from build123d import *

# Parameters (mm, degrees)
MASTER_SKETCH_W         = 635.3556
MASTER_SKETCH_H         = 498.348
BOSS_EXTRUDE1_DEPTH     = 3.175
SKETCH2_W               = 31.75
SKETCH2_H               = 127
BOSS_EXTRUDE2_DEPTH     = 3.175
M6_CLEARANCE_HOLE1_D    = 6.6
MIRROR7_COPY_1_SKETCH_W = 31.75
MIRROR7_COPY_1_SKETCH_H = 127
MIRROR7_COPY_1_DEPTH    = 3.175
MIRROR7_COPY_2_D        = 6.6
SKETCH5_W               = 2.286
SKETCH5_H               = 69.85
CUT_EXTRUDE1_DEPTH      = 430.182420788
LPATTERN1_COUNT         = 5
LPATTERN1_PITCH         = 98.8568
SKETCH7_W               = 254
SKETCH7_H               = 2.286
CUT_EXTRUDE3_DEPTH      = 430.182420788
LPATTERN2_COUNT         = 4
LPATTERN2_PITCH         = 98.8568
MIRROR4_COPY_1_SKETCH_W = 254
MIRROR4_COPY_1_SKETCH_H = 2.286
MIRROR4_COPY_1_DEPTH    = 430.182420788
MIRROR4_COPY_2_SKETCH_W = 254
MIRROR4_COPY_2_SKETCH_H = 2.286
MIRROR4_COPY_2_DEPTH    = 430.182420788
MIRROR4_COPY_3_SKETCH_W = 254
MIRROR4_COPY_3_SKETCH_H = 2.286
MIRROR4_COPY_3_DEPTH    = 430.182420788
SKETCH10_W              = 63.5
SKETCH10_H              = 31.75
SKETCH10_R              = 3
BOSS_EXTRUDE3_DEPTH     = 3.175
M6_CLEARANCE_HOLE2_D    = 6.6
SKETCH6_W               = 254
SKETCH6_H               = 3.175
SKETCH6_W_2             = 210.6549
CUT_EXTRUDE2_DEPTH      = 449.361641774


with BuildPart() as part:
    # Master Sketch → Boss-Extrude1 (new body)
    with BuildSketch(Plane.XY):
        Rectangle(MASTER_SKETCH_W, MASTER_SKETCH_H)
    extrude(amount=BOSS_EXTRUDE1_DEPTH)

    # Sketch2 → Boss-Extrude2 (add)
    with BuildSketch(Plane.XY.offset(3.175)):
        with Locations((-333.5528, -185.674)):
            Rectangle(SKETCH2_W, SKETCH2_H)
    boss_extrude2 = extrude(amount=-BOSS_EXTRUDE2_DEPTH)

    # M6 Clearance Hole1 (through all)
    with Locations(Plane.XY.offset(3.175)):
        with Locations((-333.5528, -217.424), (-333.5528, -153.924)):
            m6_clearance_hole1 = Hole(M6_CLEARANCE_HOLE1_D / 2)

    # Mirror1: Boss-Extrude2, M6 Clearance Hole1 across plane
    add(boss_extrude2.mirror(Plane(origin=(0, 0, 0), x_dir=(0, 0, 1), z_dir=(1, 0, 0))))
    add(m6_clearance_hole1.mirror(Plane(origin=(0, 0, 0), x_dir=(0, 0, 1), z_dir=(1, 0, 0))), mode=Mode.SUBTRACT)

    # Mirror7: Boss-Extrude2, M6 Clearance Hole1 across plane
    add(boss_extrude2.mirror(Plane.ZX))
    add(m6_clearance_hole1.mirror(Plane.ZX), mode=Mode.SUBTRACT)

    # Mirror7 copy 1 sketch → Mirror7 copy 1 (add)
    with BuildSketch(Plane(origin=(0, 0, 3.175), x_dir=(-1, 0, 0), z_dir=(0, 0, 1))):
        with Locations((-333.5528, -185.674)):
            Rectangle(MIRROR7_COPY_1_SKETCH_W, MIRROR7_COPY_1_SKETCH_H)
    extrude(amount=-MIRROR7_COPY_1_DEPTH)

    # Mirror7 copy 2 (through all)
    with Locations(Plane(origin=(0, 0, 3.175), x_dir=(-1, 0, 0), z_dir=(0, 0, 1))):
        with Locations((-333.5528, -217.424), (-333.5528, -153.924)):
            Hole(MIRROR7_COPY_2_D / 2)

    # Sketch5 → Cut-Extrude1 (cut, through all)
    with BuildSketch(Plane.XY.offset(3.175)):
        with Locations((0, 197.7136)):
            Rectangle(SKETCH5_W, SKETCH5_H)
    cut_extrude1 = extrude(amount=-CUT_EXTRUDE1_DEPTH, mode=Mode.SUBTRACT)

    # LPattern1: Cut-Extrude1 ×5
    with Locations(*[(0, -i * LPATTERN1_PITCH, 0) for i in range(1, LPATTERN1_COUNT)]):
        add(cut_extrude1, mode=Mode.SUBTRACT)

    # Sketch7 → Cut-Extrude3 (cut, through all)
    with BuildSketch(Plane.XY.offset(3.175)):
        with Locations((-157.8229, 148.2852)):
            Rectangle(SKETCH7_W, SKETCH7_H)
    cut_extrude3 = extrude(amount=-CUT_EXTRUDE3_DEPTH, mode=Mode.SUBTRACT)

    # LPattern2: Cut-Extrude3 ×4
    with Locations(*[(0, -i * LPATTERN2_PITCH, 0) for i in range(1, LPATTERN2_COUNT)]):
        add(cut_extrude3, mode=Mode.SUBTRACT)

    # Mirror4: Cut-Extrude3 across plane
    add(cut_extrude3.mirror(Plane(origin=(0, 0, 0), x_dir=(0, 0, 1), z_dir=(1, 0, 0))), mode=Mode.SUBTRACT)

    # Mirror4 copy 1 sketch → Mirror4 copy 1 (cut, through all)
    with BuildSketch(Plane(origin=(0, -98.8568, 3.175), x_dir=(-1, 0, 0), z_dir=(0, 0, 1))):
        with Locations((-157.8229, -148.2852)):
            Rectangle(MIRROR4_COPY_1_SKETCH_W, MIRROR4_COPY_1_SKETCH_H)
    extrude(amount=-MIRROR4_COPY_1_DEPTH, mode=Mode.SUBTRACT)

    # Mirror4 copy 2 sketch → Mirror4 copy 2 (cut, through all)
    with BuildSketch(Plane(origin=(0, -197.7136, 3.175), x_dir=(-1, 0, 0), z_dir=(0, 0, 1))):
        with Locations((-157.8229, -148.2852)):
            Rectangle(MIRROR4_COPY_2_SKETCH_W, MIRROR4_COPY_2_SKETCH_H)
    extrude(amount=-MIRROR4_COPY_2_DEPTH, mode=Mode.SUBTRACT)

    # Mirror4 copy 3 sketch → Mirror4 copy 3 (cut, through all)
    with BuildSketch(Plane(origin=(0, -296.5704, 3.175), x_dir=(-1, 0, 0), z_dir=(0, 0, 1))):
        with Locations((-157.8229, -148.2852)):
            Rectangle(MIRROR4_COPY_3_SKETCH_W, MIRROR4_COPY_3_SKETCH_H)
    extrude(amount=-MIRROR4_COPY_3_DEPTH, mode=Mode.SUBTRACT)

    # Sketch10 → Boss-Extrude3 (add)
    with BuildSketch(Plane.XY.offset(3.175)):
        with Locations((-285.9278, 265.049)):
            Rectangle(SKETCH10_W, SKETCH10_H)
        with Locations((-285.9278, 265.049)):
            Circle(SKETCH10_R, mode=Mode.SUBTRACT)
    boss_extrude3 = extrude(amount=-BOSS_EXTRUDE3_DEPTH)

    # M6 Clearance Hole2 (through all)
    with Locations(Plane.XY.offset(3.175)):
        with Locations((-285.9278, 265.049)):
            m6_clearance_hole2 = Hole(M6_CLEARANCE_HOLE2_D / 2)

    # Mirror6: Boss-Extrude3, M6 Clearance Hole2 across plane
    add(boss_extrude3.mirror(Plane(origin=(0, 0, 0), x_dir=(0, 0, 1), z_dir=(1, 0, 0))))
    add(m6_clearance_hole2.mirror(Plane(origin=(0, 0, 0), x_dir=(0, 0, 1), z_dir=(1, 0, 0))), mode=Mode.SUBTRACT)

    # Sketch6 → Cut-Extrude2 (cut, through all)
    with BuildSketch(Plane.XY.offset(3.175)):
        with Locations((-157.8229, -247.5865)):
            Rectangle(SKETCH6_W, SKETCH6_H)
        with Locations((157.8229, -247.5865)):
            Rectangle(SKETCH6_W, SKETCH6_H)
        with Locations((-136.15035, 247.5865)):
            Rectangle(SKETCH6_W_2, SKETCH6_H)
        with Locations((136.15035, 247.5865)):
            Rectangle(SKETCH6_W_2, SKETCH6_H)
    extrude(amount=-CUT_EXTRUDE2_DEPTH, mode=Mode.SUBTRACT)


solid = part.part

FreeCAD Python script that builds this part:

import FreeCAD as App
import Part
import Sketcher
from FreeCAD import Vector
Q = App.Units.Quantity


def add_polygon(sketch, points):
    """Adds a closed chain of lines whose ends are joined by coincident constraints."""
    first, n = sketch.GeometryCount, len(points)
    for a, b in zip(points, points[1:] + points[:1]):
        sketch.addGeometry(Part.LineSegment(App.Vector(*a, 0), App.Vector(*b, 0)), False)
    for i in range(n):
        sketch.addConstraint(Sketcher.Constraint("Coincident", first + i, 2, first + (i + 1) % n, 1))

doc = App.newDocument("Part")
params = doc.addObject("Spreadsheet::Sheet", "Params")
for row, (alias, value) in enumerate([
    ("sketch1_height", "19.62 in"),
    ("sketch1_width", "25.014 in"),
    ("pad1_length", "0.125 in"),
    ("sketch2_height", "5 in"),
    ("sketch2_width", "1.25 in"),
    ("pad2_length", "0.125 in"),
    ("hole_diameter", "6.6 mm"),
    ("sketch4_height", "5 in"),
    ("sketch4_width", "1.25 in"),
    ("pad3_length", "0.125 in"),
    ("hole2_diameter", "6.6 mm"),
    ("sketch6_width", "0.09 in"),
    ("sketch6_height", "2.75 in"),
    ("linearpattern_pitch", "3.892 in"),
    ("sketch7_width", "10 in"),
    ("sketch7_height", "0.09 in"),
    ("linearpattern2_pitch", "3.892 in"),
    ("sketch8_width", "10 in"),
    ("sketch8_height", "0.09 in"),
    ("sketch9_width", "10 in"),
    ("sketch9_height", "0.09 in"),
    ("sketch10_width", "10 in"),
    ("sketch10_height", "0.09 in"),
    ("sketch11_width", "2.5 in"),
    ("sketch11_height", "1.25 in"),
    ("pad4_length", "0.125 in"),
    ("hole3_diameter", "6.6 mm"),
    ("sketch13_width", "10 in"),
    ("sketch13_height", "0.125 in"),
], start=1):
    params.set(f"A{row}", alias)
    params.set(f"B{row}", "=" + value)
    params.setAlias(f"B{row}", alias)

body = doc.addObject("PartDesign::Body", "Body")

sketch1 = body.newObject("Sketcher::SketchObject", "Sketch")
sketch1.AttachmentSupport = (doc.getObject("XY_Plane"), [""])
sketch1.MapMode = "FlatFace"
add_polygon(sketch1, [(-318, 249), (-318, -249), (318, -249), (318, 249)])
sketch1.addConstraint([
    Sketcher.Constraint("Vertical", 0),
    Sketcher.Constraint("Horizontal", 1),
    Sketcher.Constraint("Vertical", 2),
    Sketcher.Constraint("Horizontal", 3),
    Sketcher.Constraint("Symmetric", 0, 2, 2, 2, -1, 1),
    Sketcher.Constraint("DistanceY", 0, 2, 0, 1, Q("19.62 in")),
    Sketcher.Constraint("DistanceX", 1, 1, 1, 2, Q("25.014 in")),
])
sketch1.setExpression("Constraints[9]", "Params.sketch1_height")
sketch1.setExpression("Constraints[10]", "Params.sketch1_width")
pad1 = body.newObject("PartDesign::Pad", "Pad")
pad1.Profile = sketch1
pad1.setExpression("Length", "Params.pad1_length")

sketch2 = body.newObject("Sketcher::SketchObject", "Sketch001")
sketch2.AttachmentSupport = (doc.getObject("XY_Plane"), [""])
sketch2.MapMode = "FlatFace"
sketch2.AttachmentOffset = App.Placement(Vector(0, 0, 0.125 * 25.4), App.Rotation())
add_polygon(sketch2, [(-349, -122), (-349, -249), (-318, -249), (-318, -122)])
sketch2.addConstraint([
    Sketcher.Constraint("Vertical", 0),
    Sketcher.Constraint("Horizontal", 1),
    Sketcher.Constraint("Vertical", 2),
    Sketcher.Constraint("Horizontal", 3),
    Sketcher.Constraint("DistanceY", 0, 2, 0, 1, Q("5 in")),
    Sketcher.Constraint("DistanceX", 1, 1, 1, 2, Q("1.25 in")),
    Sketcher.Constraint("DistanceY", 0, 2, -1, 1, Q("9.81 in")),
    Sketcher.Constraint("DistanceX", 0, 2, -1, 1, Q("13.757 in")),
])
sketch2.setExpression("Constraints[8]", "Params.sketch2_height")
sketch2.setExpression("Constraints[9]", "Params.sketch2_width")
pad2 = body.newObject("PartDesign::Pad", "Pad001")
pad2.Profile = sketch2
pad2.setExpression("Length", "Params.pad2_length")
pad2.Reversed = True

sketch3 = body.newObject("Sketcher::SketchObject", "Sketch002")
sketch3.AttachmentSupport = (doc.getObject("XY_Plane"), [""])
sketch3.MapMode = "FlatFace"
sketch3.AttachmentOffset = App.Placement(Vector(0, 0, 0.125 * 25.4), App.Rotation())
sketch3.addGeometry([
    Part.Circle(Vector(-333.6, -217.4, 0), Vector(0, 0, 1), 3.3),
    Part.Circle(Vector(-333.6, -153.9, 0), Vector(0, 0, 1), 3.3),
], False)
sketch3.addConstraint([
    Sketcher.Constraint("Equal", 0, 1),
    Sketcher.Constraint("Vertical", 0, 3, 1, 3),
    Sketcher.Constraint("DistanceY", 0, 3, 1, 3, Q("2.5 in")),
    Sketcher.Constraint("Diameter", 0, Q("6.6 mm")),
    Sketcher.Constraint("DistanceY", 0, 3, -1, 1, Q("8.56 in")),
    Sketcher.Constraint("DistanceX", 0, 3, -1, 1, Q("13.132 in")),
])
doc.recompute()
hole = body.newObject("PartDesign::Hole", "Hole")
hole.Profile = sketch3
hole.ThreadType = "None"
hole.setExpression("Diameter", "Params.hole_diameter")
hole.DepthType = "ThroughAll"
doc.recompute()

mirrored = body.newObject("PartDesign::Mirrored", "Mirrored")
mirrored.Originals = [pad2, hole]
mirrored.MirrorPlane = (doc.getObject("YZ_Plane"), [""])
body.Tip = mirrored
doc.recompute()

mirrored2 = body.newObject("PartDesign::Mirrored", "Mirrored001")
mirrored2.Originals = [pad2, hole]
mirrored2.MirrorPlane = (doc.getObject("XZ_Plane"), [""])
body.Tip = mirrored2

sketch4 = body.newObject("Sketcher::SketchObject", "Sketch003")
sketch4.AttachmentSupport = (doc.getObject("XY_Plane"), [""])
sketch4.MapMode = "FlatFace"
sketch4.AttachmentOffset = App.Placement(Vector(0, 0, 0.125 * 25.4), App.Rotation())
add_polygon(sketch4, [(349, 122), (349, 249), (318, 249), (318, 122)])
sketch4.addConstraint([
    Sketcher.Constraint("Vertical", 0),
    Sketcher.Constraint("Horizontal", 1),
    Sketcher.Constraint("Vertical", 2),
    Sketcher.Constraint("Horizontal", 3),
    Sketcher.Constraint("DistanceY", 0, 1, 0, 2, Q("5 in")),
    Sketcher.Constraint("DistanceX", 1, 2, 1, 1, Q("1.25 in")),
    Sketcher.Constraint("DistanceY", -1, 1, 0, 2, Q("9.81 in")),
    Sketcher.Constraint("DistanceX", -1, 1, 0, 2, Q("13.757 in")),
])
sketch4.setExpression("Constraints[8]", "Params.sketch4_height")
sketch4.setExpression("Constraints[9]", "Params.sketch4_width")
pad3 = body.newObject("PartDesign::Pad", "Pad002")
pad3.Profile = sketch4
pad3.setExpression("Length", "Params.pad3_length")
pad3.Reversed = True

sketch5 = body.newObject("Sketcher::SketchObject", "Sketch004")
sketch5.AttachmentSupport = (doc.getObject("XY_Plane"), [""])
sketch5.MapMode = "FlatFace"
sketch5.AttachmentOffset = App.Placement(Vector(0, 0, 0.125 * 25.4), App.Rotation())
sketch5.addGeometry([
    Part.Circle(Vector(333.6, 217.4, 0), Vector(0, 0, 1), 3.3),
    Part.Circle(Vector(333.6, 153.9, 0), Vector(0, 0, 1), 3.3),
], False)
sketch5.addConstraint([
    Sketcher.Constraint("Equal", 0, 1),
    Sketcher.Constraint("Vertical", 0, 3, 1, 3),
    Sketcher.Constraint("DistanceY", 1, 3, 0, 3, Q("2.5 in")),
    Sketcher.Constraint("Diameter", 0, Q("6.6 mm")),
    Sketcher.Constraint("DistanceY", -1, 1, 0, 3, Q("8.56 in")),
    Sketcher.Constraint("DistanceX", -1, 1, 0, 3, Q("13.132 in")),
])
doc.recompute()
hole2 = body.newObject("PartDesign::Hole", "Hole001")
hole2.Profile = sketch5
hole2.ThreadType = "None"
hole2.setExpression("Diameter", "Params.hole2_diameter")
hole2.DepthType = "ThroughAll"

sketch6 = body.newObject("Sketcher::SketchObject", "Sketch005")
sketch6.AttachmentSupport = (doc.getObject("XY_Plane"), [""])
sketch6.MapMode = "FlatFace"
sketch6.AttachmentOffset = App.Placement(Vector(0, 0, 0.125 * 25.4), App.Rotation())
add_polygon(sketch6, [(-1.1, 232.6), (-1.1, 162.8), (1.1, 162.8), (1.1, 232.6)])
sketch6.addConstraint([
    Sketcher.Constraint("Vertical", 0),
    Sketcher.Constraint("Horizontal", 1),
    Sketcher.Constraint("Vertical", 2),
    Sketcher.Constraint("Horizontal", 3),
    Sketcher.Constraint("DistanceX", 1, 1, 1, 2, Q("0.09 in")),
    Sketcher.Constraint("DistanceY", 0, 2, 0, 1, Q("2.75 in")),
    Sketcher.Constraint("DistanceX", 0, 2, -1, 1, Q("0.045 in")),
    Sketcher.Constraint("DistanceY", -1, 1, 0, 2, Q("6.409 in")),
])
sketch6.setExpression("Constraints[8]", "Params.sketch6_width")
sketch6.setExpression("Constraints[9]", "Params.sketch6_height")
pocket1 = body.newObject("PartDesign::Pocket", "Pocket")
pocket1.Profile = sketch6
pocket1.Type = "ThroughAll"
doc.recompute()

linearpattern = body.newObject("PartDesign::LinearPattern", "LinearPattern")
linearpattern.Originals = [pocket1]
linearpattern.Direction = (doc.getObject("Y_Axis"), [""])
linearpattern.Mode = "offset"
linearpattern.setExpression("Offset", "Params.linearpattern_pitch")
linearpattern.Occurrences = 5
linearpattern.Reversed = True
body.Tip = linearpattern

sketch7 = body.newObject("Sketcher::SketchObject", "Sketch006")
sketch7.AttachmentSupport = (doc.getObject("XY_Plane"), [""])
sketch7.MapMode = "FlatFace"
sketch7.AttachmentOffset = App.Placement(Vector(0, 0, 0.125 * 25.4), App.Rotation())
add_polygon(sketch7, [(-284.8, 149.4), (-284.8, 147.1), (-30.8, 147.1), (-30.8, 149.4)])
sketch7.addConstraint([
    Sketcher.Constraint("Vertical", 0),
    Sketcher.Constraint("Horizontal", 1),
    Sketcher.Constraint("Vertical", 2),
    Sketcher.Constraint("Horizontal", 3),
    Sketcher.Constraint("DistanceX", 1, 1, 1, 2, Q("10 in")),
    Sketcher.Constraint("DistanceY", 0, 2, 0, 1, Q("0.09 in")),
    Sketcher.Constraint("DistanceY", -1, 1, 0, 2, Q("5.793 in")),
    Sketcher.Constraint("DistanceX", 0, 2, -1, 1, Q("11.2135 in")),
])
sketch7.setExpression("Constraints[8]", "Params.sketch7_width")
sketch7.setExpression("Constraints[9]", "Params.sketch7_height")
pocket2 = body.newObject("PartDesign::Pocket", "Pocket001")
pocket2.Profile = sketch7
pocket2.Type = "ThroughAll"
doc.recompute()

linearpattern2 = body.newObject("PartDesign::LinearPattern", "LinearPattern001")
linearpattern2.Originals = [pocket2]
linearpattern2.Direction = (doc.getObject("Y_Axis"), [""])
linearpattern2.Mode = "offset"
linearpattern2.setExpression("Offset", "Params.linearpattern2_pitch")
linearpattern2.Occurrences = 4
linearpattern2.Reversed = True
body.Tip = linearpattern2
doc.recompute()

mirrored3 = body.newObject("PartDesign::Mirrored", "Mirrored002")
mirrored3.Originals = [pocket2]
mirrored3.MirrorPlane = (doc.getObject("YZ_Plane"), [""])
body.Tip = mirrored3

sketch8 = body.newObject("Sketcher::SketchObject", "Sketch007")
sketch8.AttachmentSupport = (doc.getObject("XY_Plane"), [""])
sketch8.MapMode = "FlatFace"
sketch8.AttachmentOffset = App.Placement(Vector(0, 0, 0.125 * 25.4), App.Rotation())
add_polygon(sketch8, [(284.8, 48.3), (284.8, 50.6), (30.8, 50.6), (30.8, 48.3)])
sketch8.addConstraint([
    Sketcher.Constraint("Vertical", 0),
    Sketcher.Constraint("Horizontal", 1),
    Sketcher.Constraint("Vertical", 2),
    Sketcher.Constraint("Horizontal", 3),
    Sketcher.Constraint("DistanceX", 1, 2, 1, 1, Q("10 in")),
    Sketcher.Constraint("DistanceY", 0, 1, 0, 2, Q("0.09 in")),
    Sketcher.Constraint("DistanceY", -1, 1, 0, 2, Q("1.991 in")),
    Sketcher.Constraint("DistanceX", -1, 1, 0, 2, Q("11.2135 in")),
])
sketch8.setExpression("Constraints[8]", "Params.sketch8_width")
sketch8.setExpression("Constraints[9]", "Params.sketch8_height")
pocket3 = body.newObject("PartDesign::Pocket", "Pocket002")
pocket3.Profile = sketch8
pocket3.Type = "ThroughAll"

sketch9 = body.newObject("Sketcher::SketchObject", "Sketch008")
sketch9.AttachmentSupport = (doc.getObject("XY_Plane"), [""])
sketch9.MapMode = "FlatFace"
sketch9.AttachmentOffset = App.Placement(Vector(0, 0, 0.125 * 25.4), App.Rotation())
add_polygon(sketch9, [(284.8, -50.6), (284.8, -48.3), (30.8, -48.3), (30.8, -50.6)])
sketch9.addConstraint([
    Sketcher.Constraint("Vertical", 0),
    Sketcher.Constraint("Horizontal", 1),
    Sketcher.Constraint("Vertical", 2),
    Sketcher.Constraint("Horizontal", 3),
    Sketcher.Constraint("DistanceX", 1, 2, 1, 1, Q("10 in")),
    Sketcher.Constraint("DistanceY", 0, 1, 0, 2, Q("0.09 in")),
    Sketcher.Constraint("DistanceY", 0, 2, -1, 1, Q("1.901 in")),
    Sketcher.Constraint("DistanceX", -1, 1, 0, 2, Q("11.2135 in")),
])
sketch9.setExpression("Constraints[8]", "Params.sketch9_width")
sketch9.setExpression("Constraints[9]", "Params.sketch9_height")
pocket4 = body.newObject("PartDesign::Pocket", "Pocket003")
pocket4.Profile = sketch9
pocket4.Type = "ThroughAll"

sketch10 = body.newObject("Sketcher::SketchObject", "Sketch009")
sketch10.AttachmentSupport = (doc.getObject("XY_Plane"), [""])
sketch10.MapMode = "FlatFace"
sketch10.AttachmentOffset = App.Placement(Vector(0, 0, 0.125 * 25.4), App.Rotation())
add_polygon(sketch10, [(284.8, -149.4), (284.8, -147.1), (30.8, -147.1), (30.8, -149.4)])
sketch10.addConstraint([
    Sketcher.Constraint("Vertical", 0),
    Sketcher.Constraint("Horizontal", 1),
    Sketcher.Constraint("Vertical", 2),
    Sketcher.Constraint("Horizontal", 3),
    Sketcher.Constraint("DistanceX", 1, 2, 1, 1, Q("10 in")),
    Sketcher.Constraint("DistanceY", 0, 1, 0, 2, Q("0.09 in")),
    Sketcher.Constraint("DistanceY", 0, 2, -1, 1, Q("5.793 in")),
    Sketcher.Constraint("DistanceX", -1, 1, 0, 2, Q("11.2135 in")),
])
sketch10.setExpression("Constraints[8]", "Params.sketch10_width")
sketch10.setExpression("Constraints[9]", "Params.sketch10_height")
pocket5 = body.newObject("PartDesign::Pocket", "Pocket004")
pocket5.Profile = sketch10
pocket5.Type = "ThroughAll"

sketch11 = body.newObject("Sketcher::SketchObject", "Sketch010")
sketch11.AttachmentSupport = (doc.getObject("XY_Plane"), [""])
sketch11.MapMode = "FlatFace"
sketch11.AttachmentOffset = App.Placement(Vector(0, 0, 0.125 * 25.4), App.Rotation())
add_polygon(sketch11, [(-317.7, 280.9), (-317.7, 249.2), (-254.2, 249.2), (-254.2, 280.9)])
sketch11.addGeometry(Part.Circle(Vector(-285.9, 265, 0), Vector(0, 0, 1), 3), False)
sketch11.addConstraint([
    Sketcher.Constraint("Vertical", 0),
    Sketcher.Constraint("Horizontal", 1),
    Sketcher.Constraint("Vertical", 2),
    Sketcher.Constraint("Horizontal", 3),
    Sketcher.Constraint("DistanceX", 1, 1, 1, 2, Q("2.5 in")),
    Sketcher.Constraint("DistanceY", 0, 2, 0, 1, Q("1.25 in")),
    Sketcher.Constraint("Diameter", 4, Q("6 mm")),
    Sketcher.Constraint("DistanceY", -1, 1, 0, 2, Q("9.81 in")),
    Sketcher.Constraint("DistanceX", 0, 2, 4, 3, Q("1.25 in")),
    Sketcher.Constraint("DistanceX", 4, 3, -1, 1, Q("11.257 in")),
    Sketcher.Constraint("DistanceY", -1, 1, 4, 3, Q("10.435 in")),
])
sketch11.setExpression("Constraints[8]", "Params.sketch11_width")
sketch11.setExpression("Constraints[9]", "Params.sketch11_height")
pad4 = body.newObject("PartDesign::Pad", "Pad003")
pad4.Profile = sketch11
pad4.setExpression("Length", "Params.pad4_length")
pad4.Reversed = True

sketch12 = body.newObject("Sketcher::SketchObject", "Sketch011")
sketch12.AttachmentSupport = (doc.getObject("XY_Plane"), [""])
sketch12.MapMode = "FlatFace"
sketch12.AttachmentOffset = App.Placement(Vector(0, 0, 0.125 * 25.4), App.Rotation())
sketch12.addGeometry(Part.Circle(Vector(-285.9, 265, 0), Vector(0, 0, 1), 3.3), False)
sketch12.addConstraint([
    Sketcher.Constraint("Diameter", 0, Q("6.6 mm")),
    Sketcher.Constraint("DistanceX", 0, 3, -1, 1, Q("11.257 in")),
    Sketcher.Constraint("DistanceY", -1, 1, 0, 3, Q("10.435 in")),
])
doc.recompute()
hole3 = body.newObject("PartDesign::Hole", "Hole002")
hole3.Profile = sketch12
hole3.ThreadType = "None"
hole3.setExpression("Diameter", "Params.hole3_diameter")
hole3.DepthType = "ThroughAll"
doc.recompute()

mirrored4 = body.newObject("PartDesign::Mirrored", "Mirrored003")
mirrored4.Originals = [pad4, hole3]
mirrored4.MirrorPlane = (doc.getObject("YZ_Plane"), [""])
body.Tip = mirrored4

sketch13 = body.newObject("Sketcher::SketchObject", "Sketch012")
sketch13.AttachmentSupport = (doc.getObject("XY_Plane"), [""])
sketch13.MapMode = "FlatFace"
sketch13.AttachmentOffset = App.Placement(Vector(0, 0, 0.125 * 25.4), App.Rotation())
add_polygon(sketch13, [(-284.8, -246), (-284.8, -249.2), (-30.8, -249.2), (-30.8, -246)])
add_polygon(sketch13, [(30.8, -246), (30.8, -249.2), (284.8, -249.2), (284.8, -246)])
add_polygon(sketch13, [(-241.5, 249.2), (-241.5, 246), (-30.8, 246), (-30.8, 249.2)])
add_polygon(sketch13, [(30.8, 249.2), (30.8, 246), (241.5, 246), (241.5, 249.2)])
sketch13.addConstraint([
    Sketcher.Constraint("Vertical", 0),
    Sketcher.Constraint("Horizontal", 1),
    Sketcher.Constraint("Vertical", 2),
    Sketcher.Constraint("Horizontal", 3),
    Sketcher.Constraint("Vertical", 4),
    Sketcher.Constraint("Horizontal", 5),
    Sketcher.Constraint("Vertical", 6),
    Sketcher.Constraint("Horizontal", 7),
    Sketcher.Constraint("Vertical", 8),
    Sketcher.Constraint("Horizontal", 9),
    Sketcher.Constraint("Vertical", 10),
    Sketcher.Constraint("Horizontal", 11),
    Sketcher.Constraint("Vertical", 12),
    Sketcher.Constraint("Horizontal", 13),
    Sketcher.Constraint("Vertical", 14),
    Sketcher.Constraint("Horizontal", 15),
    Sketcher.Constraint("Symmetric", 7, 2, 9, 2, -1, 1),
    Sketcher.Constraint("Symmetric", 2, 2, 12, 2, -1, 1),
    Sketcher.Constraint("Symmetric", 1, 2, 4, 2, -2),
    Sketcher.Constraint("Symmetric", 3, 2, 6, 2, -2),
    Sketcher.Constraint("Symmetric", 11, 2, 14, 2, -2),
    Sketcher.Constraint("Equal", 6, 8),
    Sketcher.Constraint("DistanceX", 1, 1, 1, 2, Q("10 in")),
    Sketcher.Constraint("DistanceY", 0, 2, 0, 1, Q("0.125 in")),
    Sketcher.Constraint("DistanceY", 0, 2, -1, 1, Q("9.81 in")),
    Sketcher.Constraint("DistanceX", 9, 1, 9, 2, Q("8.2935 in")),
    Sketcher.Constraint("DistanceX", 8, 2, -1, 1, Q("9.507 in")),
])
sketch13.setExpression("Constraints[38]", "Params.sketch13_width")
sketch13.setExpression("Constraints[39]", "Params.sketch13_height")
pocket6 = body.newObject("PartDesign::Pocket", "Pocket005")
pocket6.Profile = sketch13
pocket6.Type = "ThroughAll"

doc.recompute()
